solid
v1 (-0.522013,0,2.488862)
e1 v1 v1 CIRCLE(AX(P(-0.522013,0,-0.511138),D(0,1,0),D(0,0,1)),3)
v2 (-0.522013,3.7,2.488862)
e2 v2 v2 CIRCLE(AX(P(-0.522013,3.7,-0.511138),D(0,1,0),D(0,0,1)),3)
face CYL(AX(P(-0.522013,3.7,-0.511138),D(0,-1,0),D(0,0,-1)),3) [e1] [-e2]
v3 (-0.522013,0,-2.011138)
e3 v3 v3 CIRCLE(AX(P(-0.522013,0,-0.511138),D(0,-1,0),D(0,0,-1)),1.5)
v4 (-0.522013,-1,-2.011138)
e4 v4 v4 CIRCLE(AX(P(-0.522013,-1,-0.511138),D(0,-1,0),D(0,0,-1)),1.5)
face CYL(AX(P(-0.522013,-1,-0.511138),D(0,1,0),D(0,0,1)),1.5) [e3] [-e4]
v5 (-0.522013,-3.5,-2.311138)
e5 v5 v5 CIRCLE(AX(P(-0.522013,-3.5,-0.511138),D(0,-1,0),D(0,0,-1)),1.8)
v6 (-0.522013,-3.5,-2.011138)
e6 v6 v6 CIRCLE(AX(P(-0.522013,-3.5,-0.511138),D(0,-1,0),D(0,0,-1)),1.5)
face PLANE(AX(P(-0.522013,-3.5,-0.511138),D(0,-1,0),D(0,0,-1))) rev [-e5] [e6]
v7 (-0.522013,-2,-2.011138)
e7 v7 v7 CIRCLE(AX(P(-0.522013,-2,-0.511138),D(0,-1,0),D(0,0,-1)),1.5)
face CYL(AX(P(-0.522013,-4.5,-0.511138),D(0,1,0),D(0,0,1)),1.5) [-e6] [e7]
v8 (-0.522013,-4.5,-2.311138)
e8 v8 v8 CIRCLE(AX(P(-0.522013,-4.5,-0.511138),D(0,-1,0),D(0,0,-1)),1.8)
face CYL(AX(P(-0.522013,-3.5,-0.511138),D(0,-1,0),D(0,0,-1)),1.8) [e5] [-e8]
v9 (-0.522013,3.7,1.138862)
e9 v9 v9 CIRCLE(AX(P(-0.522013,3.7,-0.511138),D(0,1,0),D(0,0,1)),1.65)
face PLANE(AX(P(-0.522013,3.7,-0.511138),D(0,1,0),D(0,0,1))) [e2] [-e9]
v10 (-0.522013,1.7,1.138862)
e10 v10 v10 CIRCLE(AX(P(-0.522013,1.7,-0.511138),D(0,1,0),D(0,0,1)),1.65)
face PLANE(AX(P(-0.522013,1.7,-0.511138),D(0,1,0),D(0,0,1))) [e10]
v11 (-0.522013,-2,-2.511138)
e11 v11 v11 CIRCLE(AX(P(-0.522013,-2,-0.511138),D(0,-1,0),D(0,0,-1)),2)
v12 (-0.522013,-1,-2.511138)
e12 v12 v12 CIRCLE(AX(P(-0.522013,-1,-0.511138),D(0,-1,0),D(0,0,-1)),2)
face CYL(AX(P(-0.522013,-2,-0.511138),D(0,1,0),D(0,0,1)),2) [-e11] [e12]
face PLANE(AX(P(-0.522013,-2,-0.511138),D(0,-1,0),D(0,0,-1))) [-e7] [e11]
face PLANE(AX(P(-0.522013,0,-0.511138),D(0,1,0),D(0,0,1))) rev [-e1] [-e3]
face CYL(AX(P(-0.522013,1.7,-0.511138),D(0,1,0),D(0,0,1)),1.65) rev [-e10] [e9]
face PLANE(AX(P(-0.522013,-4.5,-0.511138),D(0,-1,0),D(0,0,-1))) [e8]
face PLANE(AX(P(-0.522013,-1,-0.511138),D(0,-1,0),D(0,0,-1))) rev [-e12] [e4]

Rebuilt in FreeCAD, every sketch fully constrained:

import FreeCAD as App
import Part
import Sketcher

V = App.Vector
Q = App.Units.Quantity

doc = App.newDocument("Part")
body = doc.addObject("PartDesign::Body", "Body")

# Sketch on XZ plane
sketch1 = body.newObject("Sketcher::SketchObject", "Sketch")
sketch1.AttachmentSupport = (doc.getObject("XZ_Plane"), [""])
sketch1.MapMode = "FlatFace"
sketch1.addGeometry(Part.Circle(V(-0.522013, -0.511138, 0), V(0, 0, 1), 3), False)
sketch1.addConstraint([
    Sketcher.Constraint("Diameter", 0, Q("6 mm")),
    Sketcher.Constraint("DistanceY", 0, 3, -1, 1, Q("0.511138 mm")),
    Sketcher.Constraint("DistanceX", 0, 3, -1, 1, Q("0.522013 mm")),
])
pad1 = body.newObject("PartDesign::Pad", "Pad")
pad1.Profile = sketch1
pad1.Length = 3.7
pad1.Reversed = True

# Sketch on XZ plane
sketch2 = body.newObject("Sketcher::SketchObject", "Sketch001")
sketch2.AttachmentSupport = (doc.getObject("XZ_Plane"), [""])
sketch2.MapMode = "FlatFace"
sketch2.addGeometry(Part.Circle(V(-0.522013, -0.511138, 0), V(0, 0, 1), 1.6), False)
sketch2.addConstraint([
    Sketcher.Constraint("Diameter", 0, Q("3.2 mm")),
    Sketcher.Constraint("DistanceY", 0, 3, -1, 1, Q("0.511138 mm")),
    Sketcher.Constraint("DistanceX", 0, 3, -1, 1, Q("0.522013 mm")),
])
pad2 = body.newObject("PartDesign::Pad", "Pad001")
pad2.Profile = sketch2
pad2.Length = 1
pad2.Reversed = True

# Sketch on XZ plane
sketch3 = body.newObject("Sketcher::SketchObject", "Sketch002")
sketch3.AttachmentSupport = (doc.getObject("XZ_Plane"), [""])
sketch3.MapMode = "FlatFace"
sketch3.addGeometry(Part.Circle(V(-0.522013, -0.511138, 0), V(0, 0, 1), 1.5), False)
sketch3.addConstraint([
    Sketcher.Constraint("Diameter", 0, Q("3 mm")),
    Sketcher.Constraint("DistanceY", 0, 3, -1, 1, Q("0.511138 mm")),
    Sketcher.Constraint("DistanceX", 0, 3, -1, 1, Q("0.522013 mm")),
])
pad3 = body.newObject("PartDesign::Pad", "Pad002")
pad3.Profile = sketch3
pad3.Length = 1

# Sketch on XZ plane
sketch4 = body.newObject("Sketcher::SketchObject", "Sketch003")
sketch4.AttachmentSupport = (doc.getObject("XZ_Plane"), [""])
sketch4.MapMode = "FlatFace"
sketch4.AttachmentOffset = App.Placement(V(0, 0, 1), App.Rotation())
sketch4.addGeometry(Part.Circle(V(-0.522013, -0.511138, 0), V(0, 0, 1), 2), False)
sketch4.addConstraint([
    Sketcher.Constraint("Diameter", 0, Q("4 mm")),
    Sketcher.Constraint("DistanceY", 0, 3, -1, 1, Q("0.511138 mm")),
    Sketcher.Constraint("DistanceX", 0, 3, -1, 1, Q("0.522013 mm")),
])
pad4 = body.newObject("PartDesign::Pad", "Pad003")
pad4.Profile = sketch4
pad4.Length = 1

# Sketch on XZ plane
sketch5 = body.newObject("Sketcher::SketchObject", "Sketch004")
sketch5.AttachmentSupport = (doc.getObject("XZ_Plane"), [""])
sketch5.MapMode = "FlatFace"
sketch5.AttachmentOffset = App.Placement(V(0, 0, 2), App.Rotation())
sketch5.addGeometry(Part.Circle(V(-0.522013, -0.511138, 0), V(0, 0, 1), 1.5), False)
sketch5.addConstraint([
    Sketcher.Constraint("Diameter", 0, Q("3 mm")),
    Sketcher.Constraint("DistanceY", 0, 3, -1, 1, Q("0.511138 mm")),
    Sketcher.Constraint("DistanceX", 0, 3, -1, 1, Q("0.522013 mm")),
])
pad5 = body.newObject("PartDesign::Pad", "Pad004")
pad5.Profile = sketch5
pad5.Length = 2.5

# Sketch on XZ plane
sketch6 = body.newObject("Sketcher::SketchObject", "Sketch005")
sketch6.AttachmentSupport = (doc.getObject("XZ_Plane"), [""])
sketch6.MapMode = "FlatFace"
sketch6.AttachmentOffset = App.Placement(V(0, 0, 4.5), App.Rotation())
sketch6.addGeometry(Part.Circle(V(-0.522013, -0.511138, 0), V(0, 0, 1), 1.8), False)
sketch6.addConstraint([
    Sketcher.Constraint("Diameter", 0, Q("3.6 mm")),
    Sketcher.Constraint("DistanceY", 0, 3, -1, 1, Q("0.511138 mm")),
    Sketcher.Constraint("DistanceX", 0, 3, -1, 1, Q("0.522013 mm")),
])
pad6 = body.newObject("PartDesign::Pad", "Pad005")
pad6.Profile = sketch6
pad6.Length = 1
pad6.Reversed = True

# Sketch on XZ plane
sketch7 = body.newObject("Sketcher::SketchObject", "Sketch006")
sketch7.AttachmentSupport = (doc.getObject("XZ_Plane"), [""])
sketch7.MapMode = "FlatFace"
sketch7.AttachmentOffset = App.Placement(V(0, 0, -3.7), App.Rotation())
sketch7.addGeometry(Part.Circle(V(-0.522013, -0.511138, 0), V(0, 0, 1), 1.65), False)
sketch7.addConstraint([
    Sketcher.Constraint("Diameter", 0, Q("3.3 mm")),
    Sketcher.Constraint("DistanceY", 0, 3, -1, 1, Q("0.511138 mm")),
    Sketcher.Constraint("DistanceX", 0, 3, -1, 1, Q("0.522013 mm")),
])
pocket1 = body.newObject("PartDesign::Pocket", "Pocket")
pocket1.Profile = sketch7
pocket1.Length = 2
pocket1.Reversed = True

doc.recompute()
